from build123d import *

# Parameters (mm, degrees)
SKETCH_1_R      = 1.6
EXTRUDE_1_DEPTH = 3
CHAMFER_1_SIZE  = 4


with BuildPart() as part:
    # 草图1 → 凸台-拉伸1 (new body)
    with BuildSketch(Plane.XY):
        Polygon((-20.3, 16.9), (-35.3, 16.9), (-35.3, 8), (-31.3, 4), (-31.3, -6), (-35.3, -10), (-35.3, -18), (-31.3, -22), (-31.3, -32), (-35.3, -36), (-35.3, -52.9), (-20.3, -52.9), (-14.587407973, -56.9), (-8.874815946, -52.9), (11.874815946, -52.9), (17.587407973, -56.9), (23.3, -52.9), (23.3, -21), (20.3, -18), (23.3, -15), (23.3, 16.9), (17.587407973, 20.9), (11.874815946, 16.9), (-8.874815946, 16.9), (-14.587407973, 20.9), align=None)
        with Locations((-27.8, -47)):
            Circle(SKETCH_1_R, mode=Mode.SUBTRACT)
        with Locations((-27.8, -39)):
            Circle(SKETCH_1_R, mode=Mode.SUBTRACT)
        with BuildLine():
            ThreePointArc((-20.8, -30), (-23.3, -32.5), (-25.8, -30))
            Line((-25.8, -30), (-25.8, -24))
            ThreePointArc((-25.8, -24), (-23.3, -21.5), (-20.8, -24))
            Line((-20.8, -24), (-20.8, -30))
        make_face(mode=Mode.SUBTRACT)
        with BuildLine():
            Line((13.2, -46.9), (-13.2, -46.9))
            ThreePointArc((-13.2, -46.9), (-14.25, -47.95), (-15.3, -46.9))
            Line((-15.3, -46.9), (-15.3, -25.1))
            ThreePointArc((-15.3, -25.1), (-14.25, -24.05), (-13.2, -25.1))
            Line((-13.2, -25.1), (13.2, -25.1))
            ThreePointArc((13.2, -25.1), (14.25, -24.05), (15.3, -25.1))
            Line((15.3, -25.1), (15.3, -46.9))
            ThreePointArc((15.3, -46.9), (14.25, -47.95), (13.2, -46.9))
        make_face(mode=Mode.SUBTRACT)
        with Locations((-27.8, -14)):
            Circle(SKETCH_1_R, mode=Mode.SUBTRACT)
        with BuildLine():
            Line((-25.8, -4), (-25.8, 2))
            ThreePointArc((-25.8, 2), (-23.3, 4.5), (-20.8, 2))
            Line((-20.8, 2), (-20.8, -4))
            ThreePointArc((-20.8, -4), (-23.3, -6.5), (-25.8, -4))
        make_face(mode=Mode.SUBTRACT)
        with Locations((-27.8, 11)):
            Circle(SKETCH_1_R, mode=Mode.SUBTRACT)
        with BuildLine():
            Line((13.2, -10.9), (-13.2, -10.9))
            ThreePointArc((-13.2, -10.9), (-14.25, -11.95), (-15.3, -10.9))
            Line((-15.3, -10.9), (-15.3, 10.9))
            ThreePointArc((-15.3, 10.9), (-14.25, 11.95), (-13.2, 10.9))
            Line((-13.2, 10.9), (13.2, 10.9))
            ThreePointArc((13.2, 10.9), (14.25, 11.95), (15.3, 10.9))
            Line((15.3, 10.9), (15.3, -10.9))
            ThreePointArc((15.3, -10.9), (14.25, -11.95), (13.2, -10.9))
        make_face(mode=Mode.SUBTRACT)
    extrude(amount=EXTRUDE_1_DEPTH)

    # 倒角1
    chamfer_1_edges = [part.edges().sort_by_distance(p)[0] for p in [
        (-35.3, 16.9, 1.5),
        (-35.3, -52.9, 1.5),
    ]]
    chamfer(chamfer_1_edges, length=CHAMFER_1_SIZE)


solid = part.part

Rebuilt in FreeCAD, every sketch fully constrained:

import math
import FreeCAD as App
import Part
import Sketcher

V = App.Vector
Q = App.Units.Quantity


def edges_at(feature, points):
    """Names of the edges that pass closest to the given points."""
    edges = feature.Shape.Edges
    near = lambda p: min(range(len(edges)), key=lambda i: edges[i].distToShape(Part.Vertex(*p))[0])
    return sorted({f"Edge{near(p) + 1}" for p in points})


def add_polygon(sketch, points):
    """Adds a closed chain of lines whose ends are joined by coincident constraints."""
    first, n = sketch.GeometryCount, len(points)
    for a, b in zip(points, points[1:] + points[:1]):
        sketch.addGeometry(Part.LineSegment(App.Vector(*a, 0), App.Vector(*b, 0)), False)
    for i in range(n):
        sketch.addConstraint(Sketcher.Constraint("Coincident", first + i, 2, first + (i + 1) % n, 1))

doc = App.newDocument("Part")
body = doc.addObject("PartDesign::Body", "Body")

# Sketch on XY plane
sketch1 = doc.addObject("Sketcher::SketchObject", "Sketch")
body.addObject(sketch1)
sketch1.AttachmentSupport = (doc.XY_Plane, [""])
sketch1.MapMode = "FlatFace"
add_polygon(sketch1, [(-20.3, 16.9), (-35.3, 16.9), (-35.3, 8), (-31.3, 4), (-31.3, -6), (-35.3, -10), (-35.3, -18), (-31.3, -22), (-31.3, -32), (-35.3, -36), (-35.3, -52.9), (-20.3, -52.9), (-14.6, -56.9), (-8.9, -52.9), (11.9, -52.9), (17.6, -56.9), (23.3, -52.9), (23.3, -21), (20.3, -18), (23.3, -15), (23.3, 16.9), (17.6, 20.9), (11.9, 16.9), (-8.9, 16.9), (-14.6, 20.9)])  # lines 0-24
sketch1.addGeometry(Part.Circle(V(-27.8, -47, 0), V(0, 0, 1), 1.6), False)  # 25
sketch1.addGeometry(Part.Circle(V(-27.8, -39, 0), V(0, 0, 1), 1.6), False)  # 26
sketch1.addGeometry(Part.LineSegment(V(-20.8, -24, 0), V(-20.8, -30, 0)), False)  # 27
sketch1.addGeometry(Part.ArcOfCircle(Part.Circle(V(-23.3, -30, 0), V(0, 0, 1), 2.5), math.radians(180), math.radians(360)), False)  # 28
sketch1.addGeometry(Part.LineSegment(V(-25.8, -30, 0), V(-25.8, -24, 0)), False)  # 29
sketch1.addGeometry(Part.ArcOfCircle(Part.Circle(V(-23.3, -24, 0), V(0, 0, 1), 2.5), math.radians(0), math.radians(180)), False)  # 30
sketch1.addGeometry(Part.ArcOfCircle(Part.Circle(V(14.2, -46.9, 0), V(0, 0, 1), 1.1), math.radians(180), math.radians(360)), False)  # 31
sketch1.addGeometry(Part.LineSegment(V(13.2, -46.9, 0), V(-13.2, -46.9, 0)), False)  # 32
sketch1.addGeometry(Part.ArcOfCircle(Part.Circle(V(-14.2, -46.9, 0), V(0, 0, 1), 1.1), math.radians(180), math.radians(360)), False)  # 33
sketch1.addGeometry(Part.LineSegment(V(-15.3, -46.9, 0), V(-15.3, -25.1, 0)), False)  # 34
sketch1.addGeometry(Part.ArcOfCircle(Part.Circle(V(-14.2, -25.1, 0), V(0, 0, 1), 1.1), math.radians(0), math.radians(180)), False)  # 35
sketch1.addGeometry(Part.LineSegment(V(-13.2, -25.1, 0), V(13.2, -25.1, 0)), False)  # 36
sketch1.addGeometry(Part.ArcOfCircle(Part.Circle(V(14.2, -25.1, 0), V(0, 0, 1), 1.1), math.radians(0), math.radians(180)), False)  # 37
sketch1.addGeometry(Part.LineSegment(V(15.3, -25.1, 0), V(15.3, -46.9, 0)), False)  # 38
sketch1.addGeometry(Part.Circle(V(-27.8, -14, 0), V(0, 0, 1), 1.6), False)  # 39
sketch1.addGeometry(Part.ArcOfCircle(Part.Circle(V(-23.3, -4, 0), V(0, 0, 1), 2.5), math.radians(180), math.radians(360)), False)  # 40
sketch1.addGeometry(Part.LineSegment(V(-25.8, -4, 0), V(-25.8, 2, 0)), False)  # 41
sketch1.addGeometry(Part.ArcOfCircle(Part.Circle(V(-23.3, 2, 0), V(0, 0, 1), 2.5), math.radians(0), math.radians(180)), False)  # 42
sketch1.addGeometry(Part.LineSegment(V(-20.8, 2, 0), V(-20.8, -4, 0)), False)  # 43
sketch1.addGeometry(Part.Circle(V(-27.8, 11, 0), V(0, 0, 1), 1.6), False)  # 44
sketch1.addGeometry(Part.ArcOfCircle(Part.Circle(V(14.2, -10.9, 0), V(0, 0, 1), 1.1), math.radians(180), math.radians(360)), False)  # 45
sketch1.addGeometry(Part.LineSegment(V(13.2, -10.9, 0), V(-13.2, -10.9, 0)), False)  # 46
sketch1.addGeometry(Part.ArcOfCircle(Part.Circle(V(-14.2, -10.9, 0), V(0, 0, 1), 1.1), math.radians(180), math.radians(360)), False)  # 47
sketch1.addGeometry(Part.LineSegment(V(-15.3, -10.9, 0), V(-15.3, 10.9, 0)), False)  # 48
sketch1.addGeometry(Part.ArcOfCircle(Part.Circle(V(-14.2, 10.9, 0), V(0, 0, 1), 1.1), math.radians(0), math.radians(180)), False)  # 49
sketch1.addGeometry(Part.LineSegment(V(-13.2, 10.9, 0), V(13.2, 10.9, 0)), False)  # 50
sketch1.addGeometry(Part.ArcOfCircle(Part.Circle(V(14.2, 10.9, 0), V(0, 0, 1), 1.1), math.radians(0), math.radians(180)), False)  # 51
sketch1.addGeometry(Part.LineSegment(V(15.3, 10.9, 0), V(15.3, -10.9, 0)), False)  # 52
sketch1.addConstraint(Sketcher.Constraint("Tangent", 27, 2, 28, 2))
sketch1.addConstraint(Sketcher.Constraint("Tangent", 28, 1, 29, 1))
sketch1.addConstraint(Sketcher.Constraint("Tangent", 29, 2, 30, 2))
sketch1.addConstraint(Sketcher.Constraint("Tangent", 30, 1, 27, 1))
sketch1.addConstraint(Sketcher.Constraint("Coincident", 31, 1, 32, 1))
sketch1.addConstraint(Sketcher.Constraint("Coincident", 32, 2, 33, 2))
sketch1.addConstraint(Sketcher.Constraint("Tangent", 33, 1, 34, 1))
sketch1.addConstraint(Sketcher.Constraint("Tangent", 34, 2, 35, 2))
sketch1.addConstraint(Sketcher.Constraint("Coincident", 35, 1, 36, 1))
sketch1.addConstraint(Sketcher.Constraint("Coincident", 36, 2, 37, 2))
sketch1.addConstraint(Sketcher.Constraint("Tangent", 37, 1, 38, 1))
sketch1.addConstraint(Sketcher.Constraint("Tangent", 38, 2, 31, 2))
sketch1.addConstraint(Sketcher.Constraint("Tangent", 40, 1, 41, 1))
sketch1.addConstraint(Sketcher.Constraint("Tangent", 41, 2, 42, 2))
sketch1.addConstraint(Sketcher.Constraint("Tangent", 42, 1, 43, 1))
sketch1.addConstraint(Sketcher.Constraint("Tangent", 43, 2, 40, 2))
sketch1.addConstraint(Sketcher.Constraint("Coincident", 45, 1, 46, 1))
sketch1.addConstraint(Sketcher.Constraint("Coincident", 46, 2, 47, 2))
sketch1.addConstraint(Sketcher.Constraint("Tangent", 47, 1, 48, 1))
sketch1.addConstraint(Sketcher.Constraint("Tangent", 48, 2, 49, 2))
sketch1.addConstraint(Sketcher.Constraint("Coincident", 49, 1, 50, 1))
sketch1.addConstraint(Sketcher.Constraint("Coincident", 50, 2, 51, 2))
sketch1.addConstraint(Sketcher.Constraint("Tangent", 51, 1, 52, 1))
sketch1.addConstraint(Sketcher.Constraint("Tangent", 52, 2, 45, 2))
sketch1.addConstraint(Sketcher.Constraint("Horizontal", 0))
sketch1.addConstraint(Sketcher.Constraint("Vertical", 1))
sketch1.addConstraint(Sketcher.Constraint("Vertical", 3))
sketch1.addConstraint(Sketcher.Constraint("Vertical", 5))
sketch1.addConstraint(Sketcher.Constraint("Vertical", 7))
sketch1.addConstraint(Sketcher.Constraint("Vertical", 9))
sketch1.addConstraint(Sketcher.Constraint("Horizontal", 10))
sketch1.addConstraint(Sketcher.Constraint("Horizontal", 13))
sketch1.addConstraint(Sketcher.Constraint("Vertical", 16))
sketch1.addConstraint(Sketcher.Constraint("Vertical", 19))
sketch1.addConstraint(Sketcher.Constraint("Horizontal", 22))
sketch1.addConstraint(Sketcher.Constraint("Vertical", 27))
sketch1.addConstraint(Sketcher.Constraint("Vertical", 29))
sketch1.addConstraint(Sketcher.Constraint("Horizontal", 32))
sketch1.addConstraint(Sketcher.Constraint("Vertical", 34))
sketch1.addConstraint(Sketcher.Constraint("Horizontal", 36))
sketch1.addConstraint(Sketcher.Constraint("Vertical", 38))
sketch1.addConstraint(Sketcher.Constraint("Vertical", 41))
sketch1.addConstraint(Sketcher.Constraint("Vertical", 43))
sketch1.addConstraint(Sketcher.Constraint("Horizontal", 46))
sketch1.addConstraint(Sketcher.Constraint("Vertical", 48))
sketch1.addConstraint(Sketcher.Constraint("Horizontal", 50))
sketch1.addConstraint(Sketcher.Constraint("Vertical", 52))
sketch1.addConstraint(Sketcher.Constraint("Equal", 25, 26))
sketch1.addConstraint(Sketcher.Constraint("Equal", 31, 33))
sketch1.addConstraint(Sketcher.Constraint("Equal", 33, 35))
sketch1.addConstraint(Sketcher.Constraint("Equal", 35, 37))
sketch1.addConstraint(Sketcher.Constraint("Equal", 26, 39))
sketch1.addConstraint(Sketcher.Constraint("Equal", 30, 40))
sketch1.addConstraint(Sketcher.Constraint("Equal", 39, 44))
sketch1.addConstraint(Sketcher.Constraint("Equal", 37, 45))
sketch1.addConstraint(Sketcher.Constraint("Equal", 45, 47))
sketch1.addConstraint(Sketcher.Constraint("Equal", 47, 49))
sketch1.addConstraint(Sketcher.Constraint("Equal", 49, 51))
sketch1.addConstraint(Sketcher.Constraint("Symmetric", 45, 3, 49, 3, -1, 1))
sketch1.addConstraint(Sketcher.Constraint("Symmetric", 31, 3, 33, 3, -2))
sketch1.addConstraint(Sketcher.Constraint("Perpendicular", 2, 4))
sketch1.addConstraint(Sketcher.Constraint("Perpendicular", 4, 6))
sketch1.addConstraint(Sketcher.Constraint("Perpendicular", 6, 8))
sketch1.addConstraint(Sketcher.Constraint("Parallel", 11, 14))
sketch1.addConstraint(Sketcher.Constraint("Parallel", 12, 15))
sketch1.addConstraint(Sketcher.Constraint("Perpendicular", 8, 17))
sketch1.addConstraint(Sketcher.Constraint("Perpendicular", 17, 18))
sketch1.addConstraint(Sketcher.Constraint("Parallel", 14, 20))
sketch1.addConstraint(Sketcher.Constraint("Parallel", 15, 21))
sketch1.addConstraint(Sketcher.Constraint("Parallel", 20, 23))
sketch1.addConstraint(Sketcher.Constraint("Parallel", 21, 24))
sketch1.addConstraint(Sketcher.Constraint("Horizontal", 35, 3, 37, 3))
sketch1.addConstraint(Sketcher.Constraint("Horizontal", 45, 3, 47, 3))
sketch1.addConstraint(Sketcher.Constraint("Horizontal", 49, 3, 51, 3))
sketch1.addConstraint(Sketcher.Constraint("Horizontal", 10, 2, 12, 2))
sketch1.addConstraint(Sketcher.Constraint("Horizontal", 11, 2, 14, 2))
sketch1.addConstraint(Sketcher.Constraint("Horizontal", 13, 2, 15, 2))
sketch1.addConstraint(Sketcher.Constraint("Horizontal", 5, 2, 17, 2))
sketch1.addConstraint(Sketcher.Constraint("Horizontal", 0, 2, 19, 2))
sketch1.addConstraint(Sketcher.Constraint("Horizontal", 19, 2, 21, 2))
sketch1.addConstraint(Sketcher.Constraint("Horizontal", 20, 2, 23, 2))
sketch1.addConstraint(Sketcher.Constraint("Horizontal", 33, 3, 31, 1))
sketch1.addConstraint(Sketcher.Constraint("Horizontal", 34, 2, 35, 1))
sketch1.addConstraint(Sketcher.Constraint("Horizontal", 47, 3, 45, 1))
sketch1.addConstraint(Sketcher.Constraint("Horizontal", 48, 2, 49, 1))
sketch1.addConstraint(Sketcher.Constraint("Vertical", 25, 3, 26, 3))
sketch1.addConstraint(Sketcher.Constraint("Vertical", 26, 3, 39, 3))
sketch1.addConstraint(Sketcher.Constraint("Vertical", 30, 3, 40, 3))
sketch1.addConstraint(Sketcher.Constraint("Vertical", 39, 3, 44, 3))
sketch1.addConstraint(Sketcher.Constraint("Vertical", 37, 3, 45, 3))
sketch1.addConstraint(Sketcher.Constraint("Vertical", 1, 2, 4, 2))
sketch1.addConstraint(Sketcher.Constraint("Vertical", 3, 2, 6, 2))
sketch1.addConstraint(Sketcher.Constraint("Vertical", 5, 2, 8, 2))
sketch1.addConstraint(Sketcher.Constraint("Vertical", 16, 2, 18, 2))
sketch1.addConstraint(Sketcher.Constraint("Vertical", 14, 2, 20, 2))
sketch1.addConstraint(Sketcher.Constraint("Vertical", 13, 2, 21, 2))
sketch1.addConstraint(Sketcher.Constraint("Vertical", 12, 2, 22, 2))
sketch1.addConstraint(Sketcher.Constraint("Equal", 3, 7))
sketch1.addConstraint(Sketcher.Constraint("Equal", 16, 19))
sketch1.addConstraint(Sketcher.Constraint("Equal", 29, 41))
sketch1.addConstraint(Sketcher.Constraint("Equal", 38, 48))
sketch1.addConstraint(Sketcher.Constraint("Equal", 2, 4))
sketch1.addConstraint(Sketcher.Constraint("Diameter", 25, Q("3.2 mm")))
sketch1.addConstraint(Sketcher.Constraint("Radius", 28, Q("2.5 mm")))
sketch1.addConstraint(Sketcher.Constraint("DistanceX", 0, 2, 0, 1, Q("15 mm")))
sketch1.addConstraint(Sketcher.Constraint("DistanceY", 3, 2, 3, 1, Q("10 mm")))
sketch1.addConstraint(Sketcher.Constraint("DistanceY", 5, 2, 5, 1, Q("8 mm")))
sketch1.addConstraint(Sketcher.Constraint("DistanceY", 27, 2, 27, 1, Q("6 mm")))
sketch1.addConstraint(Sketcher.Constraint("Angle", 11, Q("-35 deg")))
sketch1.addConstraint(Sketcher.Constraint("Radius", 31, Q("1.05 mm")))
sketch1.addConstraint(Sketcher.Constraint("DistanceX", 32, 2, 32, 1, Q("26.4 mm")))
sketch1.addConstraint(Sketcher.Constraint("DistanceY", 1, 2, 1, 1, Q("8.9 mm")))
sketch1.addConstraint(Sketcher.Constraint("DistanceY", 16, 1, 16, 2, Q("31.9 mm")))
sketch1.addConstraint(Sketcher.Constraint("DistanceY", 34, 1, 34, 2, Q("21.8 mm")))
sketch1.addConstraint(Sketcher.Constraint("DistanceY", 25, 3, -1, 1, Q("47 mm")))
sketch1.addConstraint(Sketcher.Constraint("DistanceY", 26, 3, -1, 1, Q("39 mm")))
sketch1.addConstraint(Sketcher.Constraint("DistanceY", 28, 3, -1, 1, Q("30 mm")))
sketch1.addConstraint(Sketcher.Constraint("DistanceY", 39, 3, -1, 1, Q("14 mm")))
sketch1.addConstraint(Sketcher.Constraint("DistanceY", 40, 3, -1, 1, Q("4 mm")))
sketch1.addConstraint(Sketcher.Constraint("DistanceY", -1, 1, 44, 3, Q("11 mm")))
sketch1.addConstraint(Sketcher.Constraint("DistanceY", -1, 1, 1, 2, Q("8 mm")))
sketch1.addConstraint(Sketcher.Constraint("DistanceY", -1, 1, 2, 2, Q("4 mm")))
sketch1.addConstraint(Sketcher.Constraint("DistanceX", 25, 3, -1, 1, Q("27.8 mm")))
sketch1.addConstraint(Sketcher.Constraint("DistanceX", 28, 3, -1, 1, Q("23.3 mm")))
sketch1.addConstraint(Sketcher.Constraint("DistanceY", 31, 3, -1, 1, Q("46.9 mm")))
sketch1.addConstraint(Sketcher.Constraint("DistanceX", 0, 2, -1, 1, Q("35.3 mm")))
sketch1.addConstraint(Sketcher.Constraint("DistanceY", 11, 2, -1, 1, Q("56.9 mm")))
sketch1.addConstraint(Sketcher.Constraint("DistanceX", -1, 1, 15, 2, Q("23.3 mm")))
pad1 = doc.addObject("PartDesign::Pad", "Pad")
body.addObject(pad1)
pad1.Profile = sketch1
pad1.Length = 3
doc.recompute()

chamfer = doc.addObject("PartDesign::Chamfer", "Chamfer")
body.addObject(chamfer)
chamfer.Base = (pad1, edges_at(pad1, [(-35.3, 16.9, 1.5), (-35.3, -52.9, 1.5)]))
chamfer.Size = 4

doc.recompute()
